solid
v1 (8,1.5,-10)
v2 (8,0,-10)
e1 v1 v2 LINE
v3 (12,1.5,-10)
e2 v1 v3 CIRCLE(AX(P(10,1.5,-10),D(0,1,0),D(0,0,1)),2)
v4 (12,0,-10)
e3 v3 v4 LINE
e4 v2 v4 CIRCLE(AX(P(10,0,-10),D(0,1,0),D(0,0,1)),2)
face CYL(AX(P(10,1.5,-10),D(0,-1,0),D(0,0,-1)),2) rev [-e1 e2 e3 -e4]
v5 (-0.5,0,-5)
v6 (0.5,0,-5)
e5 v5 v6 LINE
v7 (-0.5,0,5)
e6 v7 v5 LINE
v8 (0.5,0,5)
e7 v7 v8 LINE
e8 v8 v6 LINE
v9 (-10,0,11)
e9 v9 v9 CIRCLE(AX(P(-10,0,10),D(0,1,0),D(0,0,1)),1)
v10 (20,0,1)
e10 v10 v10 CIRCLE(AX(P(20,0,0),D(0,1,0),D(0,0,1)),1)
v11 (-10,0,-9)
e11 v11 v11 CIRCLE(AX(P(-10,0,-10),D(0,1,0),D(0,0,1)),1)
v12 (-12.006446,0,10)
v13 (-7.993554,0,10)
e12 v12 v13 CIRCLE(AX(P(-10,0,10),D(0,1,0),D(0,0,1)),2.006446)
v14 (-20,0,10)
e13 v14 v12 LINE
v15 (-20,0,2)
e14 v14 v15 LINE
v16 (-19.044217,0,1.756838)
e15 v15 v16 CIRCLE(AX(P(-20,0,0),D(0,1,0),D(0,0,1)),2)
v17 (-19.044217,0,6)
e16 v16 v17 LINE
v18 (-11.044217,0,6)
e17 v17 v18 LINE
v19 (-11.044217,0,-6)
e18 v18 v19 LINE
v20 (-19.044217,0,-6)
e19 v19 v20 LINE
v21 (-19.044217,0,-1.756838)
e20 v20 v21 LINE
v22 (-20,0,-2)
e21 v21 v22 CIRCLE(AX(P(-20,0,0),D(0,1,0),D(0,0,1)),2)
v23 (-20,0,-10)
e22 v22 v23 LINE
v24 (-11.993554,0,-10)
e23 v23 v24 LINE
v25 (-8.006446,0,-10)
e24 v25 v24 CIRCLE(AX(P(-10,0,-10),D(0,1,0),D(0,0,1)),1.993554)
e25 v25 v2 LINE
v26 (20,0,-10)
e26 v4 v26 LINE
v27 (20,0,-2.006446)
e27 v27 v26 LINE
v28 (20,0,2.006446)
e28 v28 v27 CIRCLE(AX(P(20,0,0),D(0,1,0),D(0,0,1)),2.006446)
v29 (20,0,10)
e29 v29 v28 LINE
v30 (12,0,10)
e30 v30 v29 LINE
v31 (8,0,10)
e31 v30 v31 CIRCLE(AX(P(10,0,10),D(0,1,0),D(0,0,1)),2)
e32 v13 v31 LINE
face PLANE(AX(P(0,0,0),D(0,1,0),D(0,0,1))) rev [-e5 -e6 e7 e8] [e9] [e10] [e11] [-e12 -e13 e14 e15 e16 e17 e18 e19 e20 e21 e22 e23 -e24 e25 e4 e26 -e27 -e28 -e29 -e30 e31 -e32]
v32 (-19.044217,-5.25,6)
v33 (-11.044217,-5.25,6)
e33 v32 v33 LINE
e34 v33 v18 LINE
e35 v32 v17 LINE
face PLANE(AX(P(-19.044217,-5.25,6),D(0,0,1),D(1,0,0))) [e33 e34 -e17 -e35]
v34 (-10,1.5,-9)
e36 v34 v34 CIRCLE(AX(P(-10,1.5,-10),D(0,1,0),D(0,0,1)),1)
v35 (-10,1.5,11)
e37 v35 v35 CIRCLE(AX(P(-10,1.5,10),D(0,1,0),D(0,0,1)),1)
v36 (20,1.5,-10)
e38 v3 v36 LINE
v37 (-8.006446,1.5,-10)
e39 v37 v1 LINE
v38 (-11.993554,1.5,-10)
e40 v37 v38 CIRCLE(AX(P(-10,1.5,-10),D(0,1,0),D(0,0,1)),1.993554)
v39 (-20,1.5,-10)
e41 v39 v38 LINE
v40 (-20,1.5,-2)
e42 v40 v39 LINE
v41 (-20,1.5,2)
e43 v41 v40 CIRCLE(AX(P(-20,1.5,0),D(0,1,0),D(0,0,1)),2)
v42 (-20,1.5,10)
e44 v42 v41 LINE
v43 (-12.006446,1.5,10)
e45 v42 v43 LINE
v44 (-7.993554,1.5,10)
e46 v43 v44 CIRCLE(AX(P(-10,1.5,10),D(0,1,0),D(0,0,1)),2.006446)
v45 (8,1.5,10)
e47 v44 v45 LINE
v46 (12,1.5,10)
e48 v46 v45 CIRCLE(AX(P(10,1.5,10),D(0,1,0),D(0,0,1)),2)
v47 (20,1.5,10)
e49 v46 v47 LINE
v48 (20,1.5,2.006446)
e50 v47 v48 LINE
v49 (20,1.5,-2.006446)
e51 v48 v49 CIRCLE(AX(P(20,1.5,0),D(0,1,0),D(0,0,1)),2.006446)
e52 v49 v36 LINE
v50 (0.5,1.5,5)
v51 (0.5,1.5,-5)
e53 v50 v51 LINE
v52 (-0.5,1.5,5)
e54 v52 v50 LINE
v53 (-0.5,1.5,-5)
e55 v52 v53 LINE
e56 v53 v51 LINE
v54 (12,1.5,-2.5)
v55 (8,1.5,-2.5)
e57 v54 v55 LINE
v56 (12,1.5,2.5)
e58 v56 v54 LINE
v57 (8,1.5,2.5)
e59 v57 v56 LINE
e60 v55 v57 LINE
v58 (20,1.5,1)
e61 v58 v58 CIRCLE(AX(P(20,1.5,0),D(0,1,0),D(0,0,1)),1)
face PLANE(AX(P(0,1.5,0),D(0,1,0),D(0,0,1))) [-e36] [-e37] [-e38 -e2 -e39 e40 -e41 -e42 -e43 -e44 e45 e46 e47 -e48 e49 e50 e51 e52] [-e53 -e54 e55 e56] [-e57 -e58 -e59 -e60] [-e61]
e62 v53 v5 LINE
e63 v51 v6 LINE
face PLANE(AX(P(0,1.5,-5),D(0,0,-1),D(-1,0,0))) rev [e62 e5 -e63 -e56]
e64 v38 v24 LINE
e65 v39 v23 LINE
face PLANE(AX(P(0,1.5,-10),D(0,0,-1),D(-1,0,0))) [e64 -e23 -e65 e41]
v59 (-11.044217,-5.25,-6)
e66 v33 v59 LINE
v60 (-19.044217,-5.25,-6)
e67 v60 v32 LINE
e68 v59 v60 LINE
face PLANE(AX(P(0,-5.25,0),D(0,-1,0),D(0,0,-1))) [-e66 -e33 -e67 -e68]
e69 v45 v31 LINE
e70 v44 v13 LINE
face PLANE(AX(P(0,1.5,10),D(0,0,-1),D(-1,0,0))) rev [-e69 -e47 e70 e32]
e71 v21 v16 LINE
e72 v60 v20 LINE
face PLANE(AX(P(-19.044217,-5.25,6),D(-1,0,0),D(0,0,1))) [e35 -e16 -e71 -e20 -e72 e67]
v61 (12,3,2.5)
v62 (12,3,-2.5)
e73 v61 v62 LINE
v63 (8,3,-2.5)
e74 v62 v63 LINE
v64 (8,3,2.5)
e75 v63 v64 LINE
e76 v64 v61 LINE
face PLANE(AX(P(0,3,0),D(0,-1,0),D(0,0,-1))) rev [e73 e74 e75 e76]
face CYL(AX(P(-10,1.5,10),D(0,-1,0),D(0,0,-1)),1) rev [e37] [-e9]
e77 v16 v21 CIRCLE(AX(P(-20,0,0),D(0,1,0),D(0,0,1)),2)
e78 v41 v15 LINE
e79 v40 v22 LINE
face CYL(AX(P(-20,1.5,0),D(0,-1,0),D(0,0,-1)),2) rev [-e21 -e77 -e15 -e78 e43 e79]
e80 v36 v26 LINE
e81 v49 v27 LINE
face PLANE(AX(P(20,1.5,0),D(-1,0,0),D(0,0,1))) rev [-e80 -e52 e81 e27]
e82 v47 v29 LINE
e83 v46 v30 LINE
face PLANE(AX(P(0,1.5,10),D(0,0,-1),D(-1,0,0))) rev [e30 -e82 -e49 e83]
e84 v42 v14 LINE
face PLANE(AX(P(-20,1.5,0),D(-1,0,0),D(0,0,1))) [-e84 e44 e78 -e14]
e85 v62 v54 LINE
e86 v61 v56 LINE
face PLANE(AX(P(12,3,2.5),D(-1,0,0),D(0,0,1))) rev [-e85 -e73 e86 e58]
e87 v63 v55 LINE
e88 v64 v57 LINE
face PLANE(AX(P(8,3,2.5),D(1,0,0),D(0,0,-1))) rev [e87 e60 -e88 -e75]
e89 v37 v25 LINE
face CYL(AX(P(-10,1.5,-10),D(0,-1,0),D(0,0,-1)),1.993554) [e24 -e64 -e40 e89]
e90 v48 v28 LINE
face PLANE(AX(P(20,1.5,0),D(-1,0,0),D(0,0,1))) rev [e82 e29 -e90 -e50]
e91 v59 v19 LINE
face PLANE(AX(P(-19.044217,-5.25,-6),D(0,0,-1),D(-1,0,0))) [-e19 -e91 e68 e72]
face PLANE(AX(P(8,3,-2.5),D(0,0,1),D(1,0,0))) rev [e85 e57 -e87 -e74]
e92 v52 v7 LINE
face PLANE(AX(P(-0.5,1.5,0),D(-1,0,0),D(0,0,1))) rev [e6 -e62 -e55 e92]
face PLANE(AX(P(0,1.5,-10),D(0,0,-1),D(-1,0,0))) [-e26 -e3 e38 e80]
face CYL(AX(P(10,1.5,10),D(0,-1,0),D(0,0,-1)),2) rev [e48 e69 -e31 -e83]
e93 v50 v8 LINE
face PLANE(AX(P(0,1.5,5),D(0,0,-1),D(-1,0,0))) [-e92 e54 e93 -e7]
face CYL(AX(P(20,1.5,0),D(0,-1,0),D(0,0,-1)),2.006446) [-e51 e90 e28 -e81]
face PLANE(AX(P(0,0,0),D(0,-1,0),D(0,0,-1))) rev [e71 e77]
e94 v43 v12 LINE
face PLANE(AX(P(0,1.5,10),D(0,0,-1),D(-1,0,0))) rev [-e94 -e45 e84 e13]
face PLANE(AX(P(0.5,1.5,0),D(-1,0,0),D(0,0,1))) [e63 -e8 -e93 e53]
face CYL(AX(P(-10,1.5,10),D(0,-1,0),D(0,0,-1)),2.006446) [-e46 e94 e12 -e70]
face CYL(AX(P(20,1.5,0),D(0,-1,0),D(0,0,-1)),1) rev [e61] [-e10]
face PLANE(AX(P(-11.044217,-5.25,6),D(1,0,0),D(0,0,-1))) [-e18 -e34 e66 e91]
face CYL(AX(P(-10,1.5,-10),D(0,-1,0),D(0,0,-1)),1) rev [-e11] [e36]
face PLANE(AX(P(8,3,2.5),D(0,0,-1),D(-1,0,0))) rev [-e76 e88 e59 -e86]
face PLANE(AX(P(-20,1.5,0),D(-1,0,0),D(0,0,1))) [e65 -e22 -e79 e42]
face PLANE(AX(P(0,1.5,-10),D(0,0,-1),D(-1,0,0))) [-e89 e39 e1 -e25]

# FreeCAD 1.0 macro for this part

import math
import FreeCAD as App
import Part
import Sketcher

V = App.Vector

doc = App.newDocument("Part")
params = doc.addObject("Spreadsheet::Sheet", "Params")
for row, (alias, value) in enumerate([
    ("sketch1_diameter", "2 mm"),
    ("sketch1_radius", "2 mm"),
    ("sketch1_width", "8 mm"),
    ("sketch1_width2", "1 mm"),
    ("sketch1_height", "10 mm"),
    ("pad1_length", "1.5 mm"),
    ("sketch2_width", "4 mm"),
    ("sketch2_height", "5 mm"),
    ("pad2_length", "1.5 mm"),
    ("sketch3_width", "8 mm"),
    ("sketch3_height", "12 mm"),
    ("pad3_length", "5.25 mm"),
], start=1):
    params.set(f"A{row}", alias)
    params.set(f"B{row}", "=" + value)
    params.setAlias(f"B{row}", alias)

body = doc.addObject("PartDesign::Body", "Body")

sketch1 = body.newObject("Sketcher::SketchObject", "Sketch")
sketch1.AttachmentSupport = (doc.getObject("XZ_Plane"), [""])
sketch1.MapMode = "FlatFace"
sketch1.addGeometry(Part.LineSegment(V(-20, 2, 0), V(-20, 10, 0)), False)
sketch1.addGeometry(Part.LineSegment(V(-20, 10, 0), V(-12, 10, 0)), False)
sketch1.addGeometry(Part.ArcOfCircle(Part.Circle(V(-10, 10, 0), V(0, 0, 1), 2), math.radians(0), math.radians(180)), False)
sketch1.addGeometry(Part.LineSegment(V(-8, 10, 0), V(8, 10, 0)), False)
sketch1.addGeometry(Part.ArcOfCircle(Part.Circle(V(10, 10, 0), V(0, 0, 1), 2), math.radians(180), math.radians(360)), False)
sketch1.addGeometry(Part.LineSegment(V(12, 10, 0), V(20, 10, 0)), False)
sketch1.addGeometry(Part.LineSegment(V(20, 10, 0), V(20, 2, 0)), False)
sketch1.addGeometry(Part.ArcOfCircle(Part.Circle(V(20, 0, 0), V(0, 0, 1), 2), math.radians(-90), math.radians(90)), False)
sketch1.addGeometry(Part.LineSegment(V(20, -2, 0), V(20, -10, 0)), False)
sketch1.addGeometry(Part.LineSegment(V(20, -10, 0), V(12, -10, 0)), False)
sketch1.addGeometry(Part.ArcOfCircle(Part.Circle(V(10, -10, 0), V(0, 0, 1), 2), math.radians(0), math.radians(180)), False)
sketch1.addGeometry(Part.LineSegment(V(8, -10, 0), V(-8, -10, 0)), False)
sketch1.addGeometry(Part.ArcOfCircle(Part.Circle(V(-10, -10, 0), V(0, 0, 1), 2), math.radians(180), math.radians(360)), False)
sketch1.addGeometry(Part.LineSegment(V(-12, -10, 0), V(-20, -10, 0)), False)
sketch1.addGeometry(Part.LineSegment(V(-20, -10, 0), V(-20, -2, 0)), False)
sketch1.addGeometry(Part.ArcOfCircle(Part.Circle(V(-20, 0, 0), V(0, 0, 1), 2), math.radians(-90), math.radians(90)), False)
sketch1.addGeometry(Part.Circle(V(-10, 10, 0), V(0, 0, 1), 1), False)
sketch1.addGeometry(Part.LineSegment(V(0.5, 5, 0), V(-0.5, 5, 0)), False)
sketch1.addGeometry(Part.LineSegment(V(-0.5, 5, 0), V(-0.5, -5, 0)), False)
sketch1.addGeometry(Part.LineSegment(V(-0.5, -5, 0), V(0.5, -5, 0)), False)
sketch1.addGeometry(Part.LineSegment(V(0.5, -5, 0), V(0.5, 5, 0)), False)
sketch1.addGeometry(Part.Circle(V(-10, -10, 0), V(0, 0, 1), 1), False)
sketch1.addGeometry(Part.Circle(V(20, 0, 0), V(0, 0, 1), 1), False)
sketch1.addConstraint(Sketcher.Constraint("Coincident", 0, 2, 1, 1))
sketch1.addConstraint(Sketcher.Constraint("Coincident", 1, 2, 2, 2))
sketch1.addConstraint(Sketcher.Constraint("Coincident", 2, 1, 3, 1))
sketch1.addConstraint(Sketcher.Constraint("Coincident", 3, 2, 4, 1))
sketch1.addConstraint(Sketcher.Constraint("Coincident", 4, 2, 5, 1))
sketch1.addConstraint(Sketcher.Constraint("Coincident", 5, 2, 6, 1))
sketch1.addConstraint(Sketcher.Constraint("Coincident", 6, 2, 7, 2))
sketch1.addConstraint(Sketcher.Constraint("Coincident", 7, 1, 8, 1))
sketch1.addConstraint(Sketcher.Constraint("Coincident", 8, 2, 9, 1))
sketch1.addConstraint(Sketcher.Constraint("Coincident", 9, 2, 10, 1))
sketch1.addConstraint(Sketcher.Constraint("Coincident", 10, 2, 11, 1))
sketch1.addConstraint(Sketcher.Constraint("Coincident", 11, 2, 12, 2))
sketch1.addConstraint(Sketcher.Constraint("Coincident", 12, 1, 13, 1))
sketch1.addConstraint(Sketcher.Constraint("Coincident", 13, 2, 14, 1))
sketch1.addConstraint(Sketcher.Constraint("Coincident", 14, 2, 15, 1))
sketch1.addConstraint(Sketcher.Constraint("Coincident", 15, 2, 0, 1))
sketch1.addConstraint(Sketcher.Constraint("Coincident", 17, 2, 18, 1))
sketch1.addConstraint(Sketcher.Constraint("Coincident", 18, 2, 19, 1))
sketch1.addConstraint(Sketcher.Constraint("Coincident", 19, 2, 20, 1))
sketch1.addConstraint(Sketcher.Constraint("Coincident", 20, 2, 17, 1))
sketch1.addConstraint(Sketcher.Constraint("Vertical", 0))
sketch1.addConstraint(Sketcher.Constraint("Horizontal", 1))
sketch1.addConstraint(Sketcher.Constraint("Horizontal", 3))
sketch1.addConstraint(Sketcher.Constraint("Horizontal", 5))
sketch1.addConstraint(Sketcher.Constraint("Vertical", 6))
sketch1.addConstraint(Sketcher.Constraint("Vertical", 8))
sketch1.addConstraint(Sketcher.Constraint("Horizontal", 9))
sketch1.addConstraint(Sketcher.Constraint("Horizontal", 11))
sketch1.addConstraint(Sketcher.Constraint("Horizontal", 13))
sketch1.addConstraint(Sketcher.Constraint("Vertical", 14))
sketch1.addConstraint(Sketcher.Constraint("Horizontal", 17))
sketch1.addConstraint(Sketcher.Constraint("Vertical", 18))
sketch1.addConstraint(Sketcher.Constraint("Horizontal", 19))
sketch1.addConstraint(Sketcher.Constraint("Vertical", 20))
sketch1.addConstraint(Sketcher.Constraint("Coincident", 16, 3, 2, 3))
sketch1.addConstraint(Sketcher.Constraint("Coincident", 21, 3, 12, 3))
sketch1.addConstraint(Sketcher.Constraint("Coincident", 22, 3, 7, 3))
sketch1.addConstraint(Sketcher.Constraint("Equal", 2, 7))
sketch1.addConstraint(Sketcher.Constraint("Equal", 4, 10))
sketch1.addConstraint(Sketcher.Constraint("Equal", 10, 15))
sketch1.addConstraint(Sketcher.Constraint("Equal", 16, 21))
sketch1.addConstraint(Sketcher.Constraint("Equal", 21, 22))
sketch1.addConstraint(Sketcher.Constraint("Symmetric", 2, 3, 10, 3, -1, 1))
sketch1.addConstraint(Sketcher.Constraint("Symmetric", 4, 3, 12, 3, -1, 1))
sketch1.addConstraint(Sketcher.Constraint("Symmetric", 7, 3, 15, 3, -1, 1))
sketch1.addConstraint(Sketcher.Constraint("Symmetric", 0, 2, 8, 2, -1, 1))
sketch1.addConstraint(Sketcher.Constraint("Symmetric", 5, 2, 13, 2, -1, 1))
sketch1.addConstraint(Sketcher.Constraint("Symmetric", 17, 2, 19, 2, -1, 1))
sketch1.addConstraint(Sketcher.Constraint("Symmetric", 2, 3, 4, 3, -2))
sketch1.addConstraint(Sketcher.Constraint("Symmetric", 0, 2, 5, 2, -2))
sketch1.addConstraint(Sketcher.Constraint("PointOnObject", 7, 3, -1))
sketch1.addConstraint(Sketcher.Constraint("Horizontal", 16, 3, 0, 2))
sketch1.addConstraint(Sketcher.Constraint("Horizontal", 1, 2, 2, 1))
sketch1.addConstraint(Sketcher.Constraint("Horizontal", 9, 2, 10, 2))
sketch1.addConstraint(Sketcher.Constraint("Vertical", 15, 3, 0, 2))
sketch1.addConstraint(Sketcher.Constraint("Equal", 9, 0))
sketch1.addConstraint(Sketcher.Constraint("Diameter", 16, 2.0))
sketch1.addConstraint(Sketcher.Constraint("Radius", 4, 2.0))
sketch1.addConstraint(Sketcher.Constraint("DistanceX", 5, 1, 5, 2, 8.0))
sketch1.addConstraint(Sketcher.Constraint("DistanceX", 17, 2, 17, 1, 1.0))
sketch1.addConstraint(Sketcher.Constraint("DistanceY", 18, 2, 18, 1, 10.0))
sketch1.addConstraint(Sketcher.Constraint("DistanceX", 2, 3, -1, 1, 10.0))
sketch1.addConstraint(Sketcher.Constraint("Radius", 2, 2.006446))
sketch1.addConstraint(Sketcher.Constraint("Radius", 12, 1.993554))
sketch1.setExpression("Constraints[56]", "Params.sketch1_diameter")
sketch1.setExpression("Constraints[57]", "Params.sketch1_radius")
sketch1.setExpression("Constraints[58]", "Params.sketch1_width")
sketch1.setExpression("Constraints[59]", "Params.sketch1_width2")
sketch1.setExpression("Constraints[60]", "Params.sketch1_height")
pad1 = body.newObject("PartDesign::Pad", "Pad")
pad1.Profile = sketch1
pad1.setExpression("Length", "Params.pad1_length")
pad1.Reversed = True

sketch2 = body.newObject("Sketcher::SketchObject", "Sketch001")
sketch2.AttachmentSupport = (doc.getObject("XZ_Plane"), [""])
sketch2.MapMode = "FlatFace"
sketch2.AttachmentOffset = App.Placement(V(0, 0, -1.5), App.Rotation())
sketch2.addGeometry(Part.LineSegment(V(8, -2.5, 0), V(8, 2.5, 0)), False)
sketch2.addGeometry(Part.LineSegment(V(8, 2.5, 0), V(12, 2.5, 0)), False)
sketch2.addGeometry(Part.LineSegment(V(12, 2.5, 0), V(12, -2.5, 0)), False)
sketch2.addGeometry(Part.LineSegment(V(12, -2.5, 0), V(8, -2.5, 0)), False)
sketch2.addConstraint(Sketcher.Constraint("Coincident", 0, 2, 1, 1))
sketch2.addConstraint(Sketcher.Constraint("Coincident", 1, 2, 2, 1))
sketch2.addConstraint(Sketcher.Constraint("Coincident", 2, 2, 3, 1))
sketch2.addConstraint(Sketcher.Constraint("Coincident", 3, 2, 0, 1))
sketch2.addConstraint(Sketcher.Constraint("Vertical", 0))
sketch2.addConstraint(Sketcher.Constraint("Horizontal", 1))
sketch2.addConstraint(Sketcher.Constraint("Vertical", 2))
sketch2.addConstraint(Sketcher.Constraint("Horizontal", 3))
sketch2.addConstraint(Sketcher.Constraint("DistanceX", 1, 1, 1, 2, 4.0))
sketch2.addConstraint(Sketcher.Constraint("DistanceY", 0, 1, 0, 2, 5.0))
sketch2.addConstraint(Sketcher.Constraint("DistanceX", -1, 1, 0, 2, 8.0))
sketch2.addConstraint(Sketcher.Constraint("DistanceY", -1, 1, 0, 2, 2.5))
sketch2.setExpression("Constraints[8]", "Params.sketch2_width")
sketch2.setExpression("Constraints[9]", "Params.sketch2_height")
pad2 = body.newObject("PartDesign::Pad", "Pad001")
pad2.Profile = sketch2
pad2.setExpression("Length", "Params.pad2_length")
pad2.Reversed = True

sketch3 = body.newObject("Sketcher::SketchObject", "Sketch002")
sketch3.AttachmentSupport = (doc.getObject("XZ_Plane"), [""])
sketch3.MapMode = "FlatFace"
sketch3.addGeometry(Part.LineSegment(V(-19, -6, 0), V(-19, 6, 0)), False)
sketch3.addGeometry(Part.LineSegment(V(-19, 6, 0), V(-11, 6, 0)), False)
sketch3.addGeometry(Part.LineSegment(V(-11, 6, 0), V(-11, -6, 0)), False)
sketch3.addGeometry(Part.LineSegment(V(-11, -6, 0), V(-19, -6, 0)), False)
sketch3.addConstraint(Sketcher.Constraint("Coincident", 0, 2, 1, 1))
sketch3.addConstraint(Sketcher.Constraint("Coincident", 1, 2, 2, 1))
sketch3.addConstraint(Sketcher.Constraint("Coincident", 2, 2, 3, 1))
sketch3.addConstraint(Sketcher.Constraint("Coincident", 3, 2, 0, 1))
sketch3.addConstraint(Sketcher.Constraint("Vertical", 0))
sketch3.addConstraint(Sketcher.Constraint("Horizontal", 1))
sketch3.addConstraint(Sketcher.Constraint("Vertical", 2))
sketch3.addConstraint(Sketcher.Constraint("Horizontal", 3))
sketch3.addConstraint(Sketcher.Constraint("DistanceX", 1, 1, 1, 2, 8.0))
sketch3.addConstraint(Sketcher.Constraint("DistanceY", 0, 1, 0, 2, 12.0))
sketch3.addConstraint(Sketcher.Constraint("DistanceY", -1, 1, 0, 2, 6.0))
sketch3.addConstraint(Sketcher.Constraint("DistanceX", 0, 2, -1, 1, 19.044217))
sketch3.setExpression("Constraints[8]", "Params.sketch3_width")
sketch3.setExpression("Constraints[9]", "Params.sketch3_height")
pad3 = body.newObject("PartDesign::Pad", "Pad002")
pad3.Profile = sketch3
pad3.setExpression("Length", "Params.pad3_length")

doc.recompute()
